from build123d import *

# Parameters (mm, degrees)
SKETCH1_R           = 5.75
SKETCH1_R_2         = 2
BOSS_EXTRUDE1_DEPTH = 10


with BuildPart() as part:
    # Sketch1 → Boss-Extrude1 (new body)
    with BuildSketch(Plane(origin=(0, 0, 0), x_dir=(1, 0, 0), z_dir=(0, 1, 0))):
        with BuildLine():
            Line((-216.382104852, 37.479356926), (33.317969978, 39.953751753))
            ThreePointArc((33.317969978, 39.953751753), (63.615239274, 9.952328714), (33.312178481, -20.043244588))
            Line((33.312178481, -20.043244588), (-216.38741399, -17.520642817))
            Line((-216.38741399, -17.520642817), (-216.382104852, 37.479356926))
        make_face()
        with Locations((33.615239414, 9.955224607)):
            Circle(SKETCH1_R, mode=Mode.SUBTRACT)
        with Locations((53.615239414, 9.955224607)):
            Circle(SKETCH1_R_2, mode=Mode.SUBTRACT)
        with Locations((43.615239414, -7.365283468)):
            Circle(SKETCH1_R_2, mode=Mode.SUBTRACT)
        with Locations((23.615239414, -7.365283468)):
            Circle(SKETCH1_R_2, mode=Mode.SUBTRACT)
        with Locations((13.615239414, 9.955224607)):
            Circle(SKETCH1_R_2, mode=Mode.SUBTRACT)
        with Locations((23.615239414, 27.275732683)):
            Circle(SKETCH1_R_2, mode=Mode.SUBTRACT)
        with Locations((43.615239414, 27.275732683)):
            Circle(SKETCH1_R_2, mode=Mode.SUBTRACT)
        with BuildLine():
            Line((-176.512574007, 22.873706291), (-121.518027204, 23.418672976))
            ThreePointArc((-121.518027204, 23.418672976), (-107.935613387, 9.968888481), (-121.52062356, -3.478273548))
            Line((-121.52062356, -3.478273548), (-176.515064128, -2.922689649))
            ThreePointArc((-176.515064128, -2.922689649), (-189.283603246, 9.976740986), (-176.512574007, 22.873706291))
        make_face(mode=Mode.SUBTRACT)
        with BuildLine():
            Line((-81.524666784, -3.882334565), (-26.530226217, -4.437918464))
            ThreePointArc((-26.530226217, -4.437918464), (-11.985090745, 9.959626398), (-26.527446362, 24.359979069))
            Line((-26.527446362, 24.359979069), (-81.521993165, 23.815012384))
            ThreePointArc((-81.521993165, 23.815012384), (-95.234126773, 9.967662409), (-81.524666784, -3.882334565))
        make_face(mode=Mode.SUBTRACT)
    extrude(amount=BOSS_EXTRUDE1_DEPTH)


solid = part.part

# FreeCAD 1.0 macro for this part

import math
import FreeCAD as App
import Part
import Sketcher
from FreeCAD import Vector
Q = App.Units.Quantity

doc = App.newDocument("Part")
body = doc.addObject("PartDesign::Body", "Body")

# Sketch on XZ plane
sketch1 = body.newObject("Sketcher::SketchObject", "Sketch")
sketch1.AttachmentSupport = (doc.getObject("XZ_Plane"), [""])
sketch1.MapMode = "FlatFace"
sketch1.addGeometry(Part.LineSegment(Vector(33.31797, -39.953752, 0), Vector(-216.382105, -37.479357, 0)), False)
sketch1.addGeometry(Part.LineSegment(Vector(-216.382105, -37.479357, 0), Vector(-216.387414, 17.520643, 0)), False)
sketch1.addGeometry(Part.LineSegment(Vector(-216.387414, 17.520643, 0), Vector(33.312178, 20.043245, 0)), False)
sketch1.addGeometry(Part.ArcOfCircle(Part.Circle(Vector(33.615239, -9.955225, 0), Vector(0, 0, 1), 30), math.radians(-90.567752), math.radians(90.578814)), False)
sketch1.addGeometry(Part.Circle(Vector(43.615239, 7.365283, 0), Vector(0, 0, 1), 2), False)
sketch1.addGeometry(Part.Circle(Vector(23.615239, 7.365283, 0), Vector(0, 0, 1), 2), False)
sketch1.addGeometry(Part.Circle(Vector(53.615239, -9.955225, 0), Vector(0, 0, 1), 2), False)
sketch1.addGeometry(Part.Circle(Vector(33.615239, -9.955225, 0), Vector(0, 0, 1), 5.75), False)
sketch1.addGeometry(Part.Circle(Vector(13.615239, -9.955225, 0), Vector(0, 0, 1), 2), False)
sketch1.addGeometry(Part.ArcOfCircle(Part.Circle(Vector(-81.38476, -9.966326, 0), Vector(0, 0, 1), 13.849367), math.radians(90.578814), math.radians(269.432248)), False)
sketch1.addGeometry(Part.LineSegment(Vector(-81.521993, -23.815012, 0), Vector(-26.527446, -24.359979, 0)), False)
sketch1.addGeometry(Part.ArcOfCircle(Part.Circle(Vector(-26.38476, -9.961016, 0), Vector(0, 0, 1), 14.39967), math.radians(-90.567752), math.radians(90.578814)), False)
sketch1.addGeometry(Part.LineSegment(Vector(-26.530226, 4.437918, 0), Vector(-81.524667, 3.882335, 0)), False)
sketch1.addGeometry(Part.Circle(Vector(43.615239, -27.275733, 0), Vector(0, 0, 1), 2), False)
sketch1.addGeometry(Part.Circle(Vector(23.615239, -27.275733, 0), Vector(0, 0, 1), 2), False)
sketch1.addGeometry(Part.LineSegment(Vector(-176.512574, -22.873706, 0), Vector(-121.518027, -23.418673, 0)), False)
sketch1.addGeometry(Part.ArcOfCircle(Part.Circle(Vector(-121.38476, -9.970187, 0), Vector(0, 0, 1), 13.449147), math.radians(-90.567752), math.radians(90.578814)), False)
sketch1.addGeometry(Part.LineSegment(Vector(-121.520624, 3.478274, 0), Vector(-176.515064, 2.92269, 0)), False)
sketch1.addGeometry(Part.ArcOfCircle(Part.Circle(Vector(-176.38476, -9.975496, 0), Vector(0, 0, 1), 12.898844), math.radians(90.578814), math.radians(269.432248)), False)
sketch1.addConstraint(Sketcher.Constraint("Coincident", 0, 2, 1, 1))
sketch1.addConstraint(Sketcher.Constraint("Coincident", 1, 2, 2, 1))
sketch1.addConstraint(Sketcher.Constraint("Tangent", 2, 2, 3, 2))
sketch1.addConstraint(Sketcher.Constraint("Tangent", 3, 1, 0, 1))
sketch1.addConstraint(Sketcher.Constraint("Tangent", 9, 2, 10, 1))
sketch1.addConstraint(Sketcher.Constraint("Tangent", 10, 2, 11, 1))
sketch1.addConstraint(Sketcher.Constraint("Tangent", 11, 2, 12, 1))
sketch1.addConstraint(Sketcher.Constraint("Tangent", 12, 2, 9, 1))
sketch1.addConstraint(Sketcher.Constraint("Tangent", 15, 2, 16, 1))
sketch1.addConstraint(Sketcher.Constraint("Tangent", 16, 2, 17, 1))
sketch1.addConstraint(Sketcher.Constraint("Tangent", 17, 2, 18, 1))
sketch1.addConstraint(Sketcher.Constraint("Tangent", 18, 2, 15, 1))
sketch1.addConstraint(Sketcher.Constraint("Coincident", 7, 3, 3, 3))
sketch1.addConstraint(Sketcher.Constraint("Equal", 4, 5))
sketch1.addConstraint(Sketcher.Constraint("Equal", 5, 6))
sketch1.addConstraint(Sketcher.Constraint("Equal", 6, 8))
sketch1.addConstraint(Sketcher.Constraint("Equal", 8, 13))
sketch1.addConstraint(Sketcher.Constraint("Equal", 13, 14))
sketch1.addConstraint(Sketcher.Constraint("Parallel", 0, 10))
sketch1.addConstraint(Sketcher.Constraint("Parallel", 2, 12))
sketch1.addConstraint(Sketcher.Constraint("Parallel", 10, 15))
sketch1.addConstraint(Sketcher.Constraint("Parallel", 12, 17))
sketch1.addConstraint(Sketcher.Constraint("Horizontal", 4, 3, 5, 3))
sketch1.addConstraint(Sketcher.Constraint("Horizontal", 3, 3, 6, 3))
sketch1.addConstraint(Sketcher.Constraint("Horizontal", 7, 3, 8, 3))
sketch1.addConstraint(Sketcher.Constraint("Horizontal", 13, 3, 14, 3))
sketch1.addConstraint(Sketcher.Constraint("Vertical", 4, 3, 13, 3))
sketch1.addConstraint(Sketcher.Constraint("Vertical", 5, 3, 14, 3))
sketch1.addConstraint(Sketcher.Constraint("Equal", 0, 2))
sketch1.addConstraint(Sketcher.Constraint("Equal", 12, 15))
sketch1.addConstraint(Sketcher.Constraint("Diameter", 4, Q("4 mm")))
sketch1.addConstraint(Sketcher.Constraint("Radius", 3, Q("30 mm")))
sketch1.addConstraint(Sketcher.Constraint("Diameter", 7, Q("11.5 mm")))
sketch1.addConstraint(Sketcher.Constraint("Distance", 1, Q("55 mm")))
sketch1.addConstraint(Sketcher.Constraint("DistanceX", 3, 3, 4, 3, Q("10 mm")))
sketch1.addConstraint(Sketcher.Constraint("DistanceX", 5, 3, 4, 3, Q("20 mm")))
sketch1.addConstraint(Sketcher.Constraint("DistanceX", 4, 3, 6, 3, Q("10 mm")))
sketch1.addConstraint(Sketcher.Constraint("DistanceX", 8, 3, 5, 3, Q("10 mm")))
sketch1.addConstraint(Sketcher.Constraint("DistanceX", 9, 3, 8, 3, Q("94.999999 mm")))
sketch1.addConstraint(Sketcher.Constraint("DistanceX", 11, 3, 8, 3, Q("40 mm")))
sketch1.addConstraint(Sketcher.Constraint("DistanceX", 16, 3, 9, 3, Q("40 mm")))
sketch1.addConstraint(Sketcher.Constraint("Radius", 11, Q("14.39967 mm")))
sketch1.addConstraint(Sketcher.Constraint("Radius", 16, Q("13.449147 mm")))
sketch1.addConstraint(Sketcher.Constraint("DistanceY", 9, 3, 8, 3, Q("0.011101 mm")))
sketch1.addConstraint(Sketcher.Constraint("DistanceY", 11, 3, 5, 3, Q("17.3263 mm")))
sketch1.addConstraint(Sketcher.Constraint("DistanceY", 9, 3, 16, 2, Q("13.444599 mm")))
sketch1.addConstraint(Sketcher.Constraint("DistanceX", -1, 1, 3, 3, Q("33.615239 mm")))
sketch1.addConstraint(Sketcher.Constraint("DistanceX", -1, 1, 2, 2, Q("33.312178 mm")))
sketch1.addConstraint(Sketcher.Constraint("DistanceY", 3, 1, -1, 1, Q("39.953752 mm")))
sketch1.addConstraint(Sketcher.Constraint("DistanceY", 13, 3, 3, 3, Q("17.320508 mm")))
sketch1.addConstraint(Sketcher.Constraint("DistanceY", 0, 2, 18, 3, Q("27.503861 mm")))
pad1 = body.newObject("PartDesign::Pad", "Pad")
pad1.Profile = sketch1
pad1.Length = 10
pad1.Reversed = True

doc.recompute()
